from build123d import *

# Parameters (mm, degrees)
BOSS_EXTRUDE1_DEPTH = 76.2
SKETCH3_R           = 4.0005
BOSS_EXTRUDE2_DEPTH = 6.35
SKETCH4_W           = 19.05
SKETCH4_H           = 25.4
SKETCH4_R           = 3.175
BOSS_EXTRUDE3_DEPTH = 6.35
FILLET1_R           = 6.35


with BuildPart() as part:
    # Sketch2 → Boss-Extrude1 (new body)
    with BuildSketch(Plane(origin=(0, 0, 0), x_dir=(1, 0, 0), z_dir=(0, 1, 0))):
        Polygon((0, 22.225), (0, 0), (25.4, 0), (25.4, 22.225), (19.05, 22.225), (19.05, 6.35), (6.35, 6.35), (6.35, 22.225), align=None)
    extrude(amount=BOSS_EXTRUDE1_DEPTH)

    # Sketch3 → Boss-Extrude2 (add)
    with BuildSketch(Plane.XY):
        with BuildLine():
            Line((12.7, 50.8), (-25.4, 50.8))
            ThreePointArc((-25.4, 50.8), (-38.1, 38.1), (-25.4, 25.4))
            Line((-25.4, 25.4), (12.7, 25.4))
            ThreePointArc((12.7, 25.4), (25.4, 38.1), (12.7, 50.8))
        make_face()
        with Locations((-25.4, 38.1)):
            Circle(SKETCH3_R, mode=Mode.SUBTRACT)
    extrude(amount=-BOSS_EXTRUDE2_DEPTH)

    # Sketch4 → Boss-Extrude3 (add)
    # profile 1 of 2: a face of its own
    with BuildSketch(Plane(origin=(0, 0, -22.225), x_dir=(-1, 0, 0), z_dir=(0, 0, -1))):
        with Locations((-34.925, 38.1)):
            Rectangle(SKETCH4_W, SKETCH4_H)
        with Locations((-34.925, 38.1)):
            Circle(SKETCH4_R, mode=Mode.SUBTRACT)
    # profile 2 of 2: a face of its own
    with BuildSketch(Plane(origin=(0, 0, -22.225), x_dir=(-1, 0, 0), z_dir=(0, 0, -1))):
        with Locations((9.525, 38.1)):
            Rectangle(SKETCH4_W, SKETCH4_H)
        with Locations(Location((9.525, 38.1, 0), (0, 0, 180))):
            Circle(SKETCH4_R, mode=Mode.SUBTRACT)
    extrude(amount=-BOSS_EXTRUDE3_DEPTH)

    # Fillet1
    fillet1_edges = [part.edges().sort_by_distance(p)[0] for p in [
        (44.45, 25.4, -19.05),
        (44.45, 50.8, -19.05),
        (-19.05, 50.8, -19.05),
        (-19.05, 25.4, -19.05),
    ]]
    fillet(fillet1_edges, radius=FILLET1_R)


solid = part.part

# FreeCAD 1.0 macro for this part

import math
import FreeCAD as App
import Part
import Sketcher
Q = App.Units.Quantity


def edges_at(feature, points):
    """Names of the edges that pass closest to the given points."""
    edges = feature.Shape.Edges
    near = lambda p: min(range(len(edges)), key=lambda i: edges[i].distToShape(Part.Vertex(*p))[0])
    return sorted({f"Edge{near(p) + 1}" for p in points})


def add_polygon(sketch, points):
    """Adds a closed chain of lines whose ends are joined by coincident constraints."""
    first, n = sketch.GeometryCount, len(points)
    for a, b in zip(points, points[1:] + points[:1]):
        sketch.addGeometry(Part.LineSegment(App.Vector(*a, 0), App.Vector(*b, 0)), False)
    for i in range(n):
        sketch.addConstraint(Sketcher.Constraint("Coincident", first + i, 2, first + (i + 1) % n, 1))

doc = App.newDocument("Part")
body = doc.addObject("PartDesign::Body", "Body")

# Sketch on XZ plane
sketch1 = doc.addObject("Sketcher::SketchObject", "Sketch")
body.addObject(sketch1)
sketch1.AttachmentSupport = (doc.XZ_Plane, [""])
sketch1.MapMode = "FlatFace"
add_polygon(sketch1, [(0, -22), (0, 0), (25, 0), (25, -22), (19, -22), (19, -6), (6, -6), (6, -22)])  # lines 0-7
sketch1.addConstraint([
    Sketcher.Constraint("Vertical", 0),
    Sketcher.Constraint("Horizontal", 1),
    Sketcher.Constraint("Vertical", 2),
    Sketcher.Constraint("Horizontal", 3),
    Sketcher.Constraint("Vertical", 4),
    Sketcher.Constraint("Horizontal", 5),
    Sketcher.Constraint("Vertical", 6),
    Sketcher.Constraint("Horizontal", 7),
    Sketcher.Constraint("Coincident", 0, 2, -1, 1),
    Sketcher.Constraint("Horizontal", 3, 2, 6, 2),
    Sketcher.Constraint("Equal", 3, 7),
    Sketcher.Constraint("DistanceX", 1, 1, 1, 2, Q("1 in")),
    Sketcher.Constraint("DistanceX", 5, 2, 5, 1, Q("0.5 in")),
    Sketcher.Constraint("DistanceY", 0, 1, 0, 2, Q("0.875 in")),
    Sketcher.Constraint("DistanceY", 4, 1, 4, 2, Q("0.625 in")),
])
pad1 = doc.addObject("PartDesign::Pad", "Pad")
body.addObject(pad1)
pad1.Profile = sketch1
pad1.Length = Q("3 in")
pad1.Reversed = True

# Sketch on XY plane
sketch2 = doc.addObject("Sketcher::SketchObject", "Sketch001")
body.addObject(sketch2)
sketch2.AttachmentSupport = (doc.XY_Plane, [""])
sketch2.MapMode = "FlatFace"
sketch2.addGeometry([
    Part.LineSegment(App.Vector(12.7, 50.8, 0), App.Vector(-25.4, 50.8, 0)),  # 0
    Part.ArcOfCircle(Part.Circle(App.Vector(-25.4, 38.1, 0), App.Vector(0, 0, 1), 12.7), math.radians(90), math.radians(270)),  # 1
    Part.LineSegment(App.Vector(-25.4, 25.4, 0), App.Vector(12.7, 25.4, 0)),  # 2
    Part.ArcOfCircle(Part.Circle(App.Vector(12.7, 38.1, 0), App.Vector(0, 0, 1), 12.7), math.radians(-90), math.radians(90)),  # 3
    Part.Circle(App.Vector(-25.4, 38.1, 0), App.Vector(0, 0, 1), 4),  # 4
], False)
sketch2.addConstraint([
    Sketcher.Constraint("Tangent", 0, 2, 1, 1),
    Sketcher.Constraint("Tangent", 1, 2, 2, 1),
    Sketcher.Constraint("Tangent", 2, 2, 3, 1),
    Sketcher.Constraint("Tangent", 3, 2, 0, 1),
    Sketcher.Constraint("Horizontal", 0),
    Sketcher.Constraint("Horizontal", 2),
    Sketcher.Constraint("Coincident", 4, 3, 1, 3),
    Sketcher.Constraint("Radius", 1, Q("0.5 in")),
    Sketcher.Constraint("Diameter", 4, Q("0.315 in")),
    Sketcher.Constraint("DistanceX", 0, 2, 0, 1, Q("1.5 in")),
    Sketcher.Constraint("DistanceX", 1, 3, -1, 1, Q("1 in")),
    Sketcher.Constraint("DistanceY", -1, 1, 0, 2, Q("2 in")),
])
pad2 = doc.addObject("PartDesign::Pad", "Pad001")
body.addObject(pad2)
pad2.Profile = sketch2
pad2.Length = Q("0.25 in")
pad2.Reversed = True

# Sketch on XY plane
sketch3 = doc.addObject("Sketcher::SketchObject", "Sketch002")
body.addObject(sketch3)
sketch3.AttachmentSupport = (doc.XY_Plane, [""])
sketch3.MapMode = "FlatFace"
sketch3.AttachmentOffset = App.Placement(App.Vector(0, 0, -0.875 * 25.4), App.Rotation())
add_polygon(sketch3, [(44.5, 50.8), (44.5, 25.4), (25.4, 25.4), (25.4, 50.8)])  # lines 0-3
sketch3.addGeometry(Part.Circle(App.Vector(34.9, 38.1, 0), App.Vector(0, 0, 1), 3.2), False)  # 4
add_polygon(sketch3, [(0, 50.8), (0, 25.4), (-19.1, 25.4), (-19.1, 50.8)])  # lines 5-8
sketch3.addGeometry(Part.Circle(App.Vector(-9.5, 38.1, 0), App.Vector(0, 0, 1), 3.2), False)  # 9
sketch3.addConstraint([
    Sketcher.Constraint("Vertical", 0),
    Sketcher.Constraint("Horizontal", 1),
    Sketcher.Constraint("Vertical", 2),
    Sketcher.Constraint("Horizontal", 3),
    Sketcher.Constraint("Vertical", 5),
    Sketcher.Constraint("Horizontal", 6),
    Sketcher.Constraint("Vertical", 7),
    Sketcher.Constraint("Horizontal", 8),
    Sketcher.Constraint("Equal", 4, 9),
    Sketcher.Constraint("PointOnObject", 5, 2, -2),
    Sketcher.Constraint("Horizontal", 4, 3, 9, 3),
    Sketcher.Constraint("Horizontal", 1, 2, 5, 2),
    Sketcher.Constraint("Horizontal", 3, 2, 7, 2),
    Sketcher.Constraint("Equal", 3, 6),
    Sketcher.Constraint("Diameter", 4, Q("0.25 in")),
    Sketcher.Constraint("DistanceY", 0, 2, 0, 1, Q("1 in")),
    Sketcher.Constraint("DistanceY", -1, 1, 0, 2, Q("1 in")),
    Sketcher.Constraint("DistanceX", -1, 1, 1, 2, Q("1 in")),
    Sketcher.Constraint("DistanceX", 1, 2, 1, 1, Q("0.75 in")),
    Sketcher.Constraint("DistanceY", -1, 1, 4, 3, Q("1.5 in")),
    Sketcher.Constraint("DistanceX", 9, 3, 4, 3, Q("1.75 in")),
    Sketcher.Constraint("DistanceX", -1, 1, 4, 3, Q("1.375 in")),
])
pad3 = doc.addObject("PartDesign::Pad", "Pad002")
body.addObject(pad3)
pad3.Profile = sketch3
pad3.Length = Q("0.25 in")
doc.recompute()

fillet = doc.addObject("PartDesign::Fillet", "Fillet")
body.addObject(fillet)
fillet.Base = (pad3, edges_at(pad3, [
    (44.45, 25.4, -19.05),
    (44.45, 50.8, -19.05),
    (-19.05, 50.8, -19.05),
    (-19.05, 25.4, -19.05),
]))
fillet.Radius = Q("0.25 in")

doc.recompute()
